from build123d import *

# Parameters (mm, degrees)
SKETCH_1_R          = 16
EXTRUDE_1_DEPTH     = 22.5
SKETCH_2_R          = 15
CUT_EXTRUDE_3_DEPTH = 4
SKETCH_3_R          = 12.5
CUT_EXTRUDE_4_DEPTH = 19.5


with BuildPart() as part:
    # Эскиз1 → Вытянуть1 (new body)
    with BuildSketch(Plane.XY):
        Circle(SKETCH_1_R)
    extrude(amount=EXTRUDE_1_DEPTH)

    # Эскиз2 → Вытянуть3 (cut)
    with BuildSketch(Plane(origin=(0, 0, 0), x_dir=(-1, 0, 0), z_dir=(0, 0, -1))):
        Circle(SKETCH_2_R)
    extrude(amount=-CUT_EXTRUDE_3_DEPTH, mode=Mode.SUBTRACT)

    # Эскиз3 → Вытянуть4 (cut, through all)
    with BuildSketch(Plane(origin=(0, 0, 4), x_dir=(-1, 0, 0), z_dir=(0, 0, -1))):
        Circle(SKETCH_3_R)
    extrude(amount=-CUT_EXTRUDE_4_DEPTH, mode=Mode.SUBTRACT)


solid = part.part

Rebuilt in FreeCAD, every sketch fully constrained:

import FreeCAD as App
import Part
import Sketcher
Q = App.Units.Quantity

doc = App.newDocument("Part")
body = doc.addObject("PartDesign::Body", "Body")

# Sketch on XY plane
sketch1 = body.newObject("Sketcher::SketchObject", "Sketch")
sketch1.AttachmentSupport = (doc.getObject("XY_Plane"), [""])
sketch1.MapMode = "FlatFace"
sketch1.addGeometry(Part.Circle(App.Vector(0, 0, 0), App.Vector(0, 0, 1), 16), False)
sketch1.addConstraint([
    Sketcher.Constraint("Coincident", 0, 3, -1, 1),
    Sketcher.Constraint("Diameter", 0, Q("32 mm")),
])
pad1 = body.newObject("PartDesign::Pad", "Pad")
pad1.Profile = sketch1
pad1.Length = 22.5

# Sketch on XY plane
sketch2 = body.newObject("Sketcher::SketchObject", "Sketch001")
sketch2.AttachmentSupport = (doc.getObject("XY_Plane"), [""])
sketch2.MapMode = "FlatFace"
sketch2.addGeometry(Part.Circle(App.Vector(0, 0, 0), App.Vector(0, 0, 1), 15), False)
sketch2.addConstraint([
    Sketcher.Constraint("Coincident", 0, 3, -1, 1),
    Sketcher.Constraint("Diameter", 0, Q("30 mm")),
])
pocket1 = body.newObject("PartDesign::Pocket", "Pocket")
pocket1.Profile = sketch2
pocket1.Length = 4
pocket1.Reversed = True

# Sketch on XY plane
sketch3 = body.newObject("Sketcher::SketchObject", "Sketch002")
sketch3.AttachmentSupport = (doc.getObject("XY_Plane"), [""])
sketch3.MapMode = "FlatFace"
sketch3.AttachmentOffset = App.Placement(App.Vector(0, 0, 4), App.Rotation())
sketch3.addGeometry(Part.Circle(App.Vector(0, 0, 0), App.Vector(0, 0, 1), 12), False)
sketch3.addConstraint([
    Sketcher.Constraint("Coincident", 0, 3, -1, 1),
    Sketcher.Constraint("Diameter", 0, Q("25 mm")),
])
pocket2 = body.newObject("PartDesign::Pocket", "Pocket001")
pocket2.Profile = sketch3
pocket2.Type = "ThroughAll"
pocket2.Reversed = True

doc.recompute()
